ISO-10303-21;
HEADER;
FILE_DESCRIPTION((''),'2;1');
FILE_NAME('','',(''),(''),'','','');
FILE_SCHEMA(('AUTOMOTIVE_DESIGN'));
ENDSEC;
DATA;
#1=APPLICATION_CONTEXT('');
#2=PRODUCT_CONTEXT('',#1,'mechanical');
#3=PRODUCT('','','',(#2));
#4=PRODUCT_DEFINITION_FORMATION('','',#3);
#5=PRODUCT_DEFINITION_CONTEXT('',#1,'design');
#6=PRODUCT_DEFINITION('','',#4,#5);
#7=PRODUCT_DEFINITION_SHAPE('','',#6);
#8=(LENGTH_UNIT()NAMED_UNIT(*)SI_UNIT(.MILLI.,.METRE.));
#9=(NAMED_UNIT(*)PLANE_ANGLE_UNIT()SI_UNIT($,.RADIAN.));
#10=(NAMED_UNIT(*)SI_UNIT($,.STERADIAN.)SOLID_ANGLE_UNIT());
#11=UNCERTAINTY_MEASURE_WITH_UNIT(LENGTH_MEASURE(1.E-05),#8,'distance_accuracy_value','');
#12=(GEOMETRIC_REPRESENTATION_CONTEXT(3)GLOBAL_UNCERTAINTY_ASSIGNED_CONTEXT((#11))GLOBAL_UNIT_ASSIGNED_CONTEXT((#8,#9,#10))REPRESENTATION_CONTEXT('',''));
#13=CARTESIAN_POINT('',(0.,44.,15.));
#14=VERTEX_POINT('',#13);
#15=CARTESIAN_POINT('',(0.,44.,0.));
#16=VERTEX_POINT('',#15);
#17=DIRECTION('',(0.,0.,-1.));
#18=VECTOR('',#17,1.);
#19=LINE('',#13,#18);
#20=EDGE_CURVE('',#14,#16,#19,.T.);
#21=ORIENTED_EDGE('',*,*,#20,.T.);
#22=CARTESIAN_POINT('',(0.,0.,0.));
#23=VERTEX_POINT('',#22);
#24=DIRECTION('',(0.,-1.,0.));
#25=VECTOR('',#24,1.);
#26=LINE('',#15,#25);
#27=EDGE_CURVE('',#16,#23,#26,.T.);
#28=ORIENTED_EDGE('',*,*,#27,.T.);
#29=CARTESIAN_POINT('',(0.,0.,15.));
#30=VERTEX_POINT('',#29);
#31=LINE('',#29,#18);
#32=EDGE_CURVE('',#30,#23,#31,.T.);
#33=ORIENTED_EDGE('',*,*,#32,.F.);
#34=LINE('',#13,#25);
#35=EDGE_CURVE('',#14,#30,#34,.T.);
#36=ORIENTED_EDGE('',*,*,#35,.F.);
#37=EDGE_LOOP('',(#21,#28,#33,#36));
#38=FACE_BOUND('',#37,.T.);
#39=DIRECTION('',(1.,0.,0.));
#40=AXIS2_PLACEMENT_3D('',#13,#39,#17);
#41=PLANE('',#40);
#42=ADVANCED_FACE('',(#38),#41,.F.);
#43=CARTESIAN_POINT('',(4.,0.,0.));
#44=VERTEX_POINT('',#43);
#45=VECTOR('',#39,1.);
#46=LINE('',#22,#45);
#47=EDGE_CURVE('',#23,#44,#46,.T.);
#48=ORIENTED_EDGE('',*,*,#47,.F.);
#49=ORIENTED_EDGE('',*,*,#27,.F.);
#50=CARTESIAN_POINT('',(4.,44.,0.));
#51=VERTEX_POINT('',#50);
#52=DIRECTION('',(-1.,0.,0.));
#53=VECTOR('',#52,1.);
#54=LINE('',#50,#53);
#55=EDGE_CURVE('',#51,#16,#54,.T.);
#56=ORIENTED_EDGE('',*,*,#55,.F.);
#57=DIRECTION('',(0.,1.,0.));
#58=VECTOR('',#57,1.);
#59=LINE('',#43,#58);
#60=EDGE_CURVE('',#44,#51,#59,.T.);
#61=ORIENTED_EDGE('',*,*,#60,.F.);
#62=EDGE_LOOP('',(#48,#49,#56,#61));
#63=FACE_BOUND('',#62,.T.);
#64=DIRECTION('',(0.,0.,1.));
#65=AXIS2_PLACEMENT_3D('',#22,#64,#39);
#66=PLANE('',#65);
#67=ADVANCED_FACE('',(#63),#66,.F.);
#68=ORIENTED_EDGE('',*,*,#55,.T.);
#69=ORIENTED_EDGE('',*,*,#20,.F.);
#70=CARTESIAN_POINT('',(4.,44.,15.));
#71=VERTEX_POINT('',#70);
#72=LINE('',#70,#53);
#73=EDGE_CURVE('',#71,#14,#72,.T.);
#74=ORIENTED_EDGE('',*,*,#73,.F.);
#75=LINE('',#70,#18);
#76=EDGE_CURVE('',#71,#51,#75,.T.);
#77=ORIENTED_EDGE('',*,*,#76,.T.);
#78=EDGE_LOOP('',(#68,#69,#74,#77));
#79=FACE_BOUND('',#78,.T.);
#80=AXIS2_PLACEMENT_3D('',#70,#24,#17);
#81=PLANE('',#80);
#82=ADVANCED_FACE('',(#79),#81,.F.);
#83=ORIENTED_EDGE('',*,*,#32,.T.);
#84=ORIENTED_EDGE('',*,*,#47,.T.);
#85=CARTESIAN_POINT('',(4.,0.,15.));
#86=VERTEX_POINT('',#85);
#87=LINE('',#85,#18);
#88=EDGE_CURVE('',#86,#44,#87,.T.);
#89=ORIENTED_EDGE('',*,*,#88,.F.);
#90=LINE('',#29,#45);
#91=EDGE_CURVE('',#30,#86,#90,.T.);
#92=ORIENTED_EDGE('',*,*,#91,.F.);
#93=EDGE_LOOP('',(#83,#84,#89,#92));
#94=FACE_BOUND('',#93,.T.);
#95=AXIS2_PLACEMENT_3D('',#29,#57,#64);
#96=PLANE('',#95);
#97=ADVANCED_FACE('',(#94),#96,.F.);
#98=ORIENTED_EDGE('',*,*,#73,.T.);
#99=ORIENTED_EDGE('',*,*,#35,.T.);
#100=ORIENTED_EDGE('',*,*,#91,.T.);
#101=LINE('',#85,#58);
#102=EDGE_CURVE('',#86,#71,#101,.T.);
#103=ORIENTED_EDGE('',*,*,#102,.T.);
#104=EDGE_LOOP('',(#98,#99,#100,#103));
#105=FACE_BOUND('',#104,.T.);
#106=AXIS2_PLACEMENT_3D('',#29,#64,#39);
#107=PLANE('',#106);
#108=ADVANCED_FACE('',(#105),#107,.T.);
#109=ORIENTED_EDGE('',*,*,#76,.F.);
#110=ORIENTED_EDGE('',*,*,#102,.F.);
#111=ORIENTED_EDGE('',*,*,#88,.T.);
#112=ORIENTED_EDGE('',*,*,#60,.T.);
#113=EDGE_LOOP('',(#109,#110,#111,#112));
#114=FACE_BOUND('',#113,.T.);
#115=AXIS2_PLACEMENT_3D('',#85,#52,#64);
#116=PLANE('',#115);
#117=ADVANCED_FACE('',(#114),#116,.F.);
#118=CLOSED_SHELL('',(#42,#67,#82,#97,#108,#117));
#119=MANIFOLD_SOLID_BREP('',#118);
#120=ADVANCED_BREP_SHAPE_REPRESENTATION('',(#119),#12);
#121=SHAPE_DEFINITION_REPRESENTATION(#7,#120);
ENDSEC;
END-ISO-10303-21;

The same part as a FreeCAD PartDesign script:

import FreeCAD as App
import Part
import Sketcher
Q = App.Units.Quantity

doc = App.newDocument("Part")
params = doc.addObject("Spreadsheet::Sheet", "Params")
for row, (alias, value) in enumerate([
    ("sketch1_width", "4 mm"),
    ("sketch1_height", "44 mm"),
    ("pad1_length", "15 mm"),
], start=1):
    params.set(f"A{row}", alias)
    params.set(f"B{row}", "=" + value)
    params.setAlias(f"B{row}", alias)

body = doc.addObject("PartDesign::Body", "Body")

# Sketch on XY plane
sketch1 = body.newObject("Sketcher::SketchObject", "Sketch")
sketch1.AttachmentSupport = (doc.getObject("XY_Plane"), [""])
sketch1.MapMode = "FlatFace"
sketch1.addGeometry([
    Part.LineSegment(App.Vector(0, 44, 0), App.Vector(0, 0, 0)),
    Part.LineSegment(App.Vector(0, 0, 0), App.Vector(4, 0, 0)),
    Part.LineSegment(App.Vector(4, 0, 0), App.Vector(4, 44, 0)),
    Part.LineSegment(App.Vector(4, 44, 0), App.Vector(0, 44, 0)),
], False)
sketch1.addConstraint([
    Sketcher.Constraint("Coincident", 0, 2, 1, 1),
    Sketcher.Constraint("Coincident", 1, 2, 2, 1),
    Sketcher.Constraint("Coincident", 2, 2, 3, 1),
    Sketcher.Constraint("Coincident", 3, 2, 0, 1),
    Sketcher.Constraint("Vertical", 0),
    Sketcher.Constraint("Horizontal", 1),
    Sketcher.Constraint("Vertical", 2),
    Sketcher.Constraint("Horizontal", 3),
    Sketcher.Constraint("Coincident", 0, 2, -1, 1),
    Sketcher.Constraint("DistanceX", 1, 1, 1, 2, Q("4 mm")),
    Sketcher.Constraint("DistanceY", 0, 2, 0, 1, Q("44 mm")),
])
sketch1.setExpression("Constraints[9]", "Params.sketch1_width")
sketch1.setExpression("Constraints[10]", "Params.sketch1_height")
pad1 = body.newObject("PartDesign::Pad", "Pad")
pad1.Profile = sketch1
pad1.setExpression("Length", "Params.pad1_length")

doc.recompute()
